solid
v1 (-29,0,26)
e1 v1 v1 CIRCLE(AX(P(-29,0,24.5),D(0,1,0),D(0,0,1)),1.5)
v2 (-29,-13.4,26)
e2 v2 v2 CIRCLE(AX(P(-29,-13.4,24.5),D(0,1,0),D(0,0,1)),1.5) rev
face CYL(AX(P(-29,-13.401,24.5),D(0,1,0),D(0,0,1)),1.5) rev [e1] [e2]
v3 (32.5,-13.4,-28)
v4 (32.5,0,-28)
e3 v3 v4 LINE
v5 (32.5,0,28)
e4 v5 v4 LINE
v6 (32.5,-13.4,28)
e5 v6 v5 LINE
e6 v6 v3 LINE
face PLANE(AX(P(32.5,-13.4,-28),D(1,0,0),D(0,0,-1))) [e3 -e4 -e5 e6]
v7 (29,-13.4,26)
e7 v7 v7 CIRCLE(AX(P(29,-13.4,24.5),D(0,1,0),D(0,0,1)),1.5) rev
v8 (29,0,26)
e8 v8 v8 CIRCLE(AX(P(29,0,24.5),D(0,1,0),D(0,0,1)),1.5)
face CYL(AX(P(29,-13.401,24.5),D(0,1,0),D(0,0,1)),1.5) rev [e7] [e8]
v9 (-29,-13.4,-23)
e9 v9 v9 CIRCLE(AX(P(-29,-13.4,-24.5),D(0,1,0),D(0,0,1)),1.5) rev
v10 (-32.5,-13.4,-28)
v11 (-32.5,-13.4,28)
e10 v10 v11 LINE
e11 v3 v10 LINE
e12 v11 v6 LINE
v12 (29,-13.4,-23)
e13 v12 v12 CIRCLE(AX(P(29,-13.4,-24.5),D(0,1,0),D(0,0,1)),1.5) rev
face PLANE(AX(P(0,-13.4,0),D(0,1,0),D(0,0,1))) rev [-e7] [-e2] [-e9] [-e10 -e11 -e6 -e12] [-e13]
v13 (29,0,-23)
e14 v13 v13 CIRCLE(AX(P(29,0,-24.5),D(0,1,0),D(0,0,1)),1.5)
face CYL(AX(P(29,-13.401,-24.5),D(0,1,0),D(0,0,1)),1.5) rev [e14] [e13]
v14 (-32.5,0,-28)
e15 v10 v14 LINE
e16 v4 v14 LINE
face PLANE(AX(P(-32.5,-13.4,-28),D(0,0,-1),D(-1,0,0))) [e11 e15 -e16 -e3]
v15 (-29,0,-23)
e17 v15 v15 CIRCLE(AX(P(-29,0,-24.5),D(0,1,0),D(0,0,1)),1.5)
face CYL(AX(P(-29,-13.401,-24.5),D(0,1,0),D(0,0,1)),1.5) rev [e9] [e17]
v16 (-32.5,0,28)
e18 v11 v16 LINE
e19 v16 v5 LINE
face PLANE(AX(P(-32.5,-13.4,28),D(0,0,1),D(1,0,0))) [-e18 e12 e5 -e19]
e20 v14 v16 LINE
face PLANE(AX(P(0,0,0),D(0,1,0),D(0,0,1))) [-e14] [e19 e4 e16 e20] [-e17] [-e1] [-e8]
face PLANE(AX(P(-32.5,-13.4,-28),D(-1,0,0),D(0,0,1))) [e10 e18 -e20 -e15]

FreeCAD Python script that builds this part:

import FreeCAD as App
import Part
import Sketcher

V = App.Vector

doc = App.newDocument("Part")
body = doc.addObject("PartDesign::Body", "Body")

# Sketch on XZ plane
sketch1 = body.newObject("Sketcher::SketchObject", "Sketch")
sketch1.AttachmentSupport = (doc.getObject("XZ_Plane"), [""])
sketch1.MapMode = "FlatFace"
sketch1.addGeometry([
    Part.LineSegment(V(-32, -28, 0), V(-32, 28, 0)),
    Part.LineSegment(V(-32, 28, 0), V(32, 28, 0)),
    Part.LineSegment(V(32, 28, 0), V(32, -28, 0)),
    Part.LineSegment(V(32, -28, 0), V(-32, -28, 0)),
], False)
sketch1.addConstraint([
    Sketcher.Constraint("Coincident", 0, 2, 1, 1),
    Sketcher.Constraint("Coincident", 1, 2, 2, 1),
    Sketcher.Constraint("Coincident", 2, 2, 3, 1),
    Sketcher.Constraint("Coincident", 3, 2, 0, 1),
    Sketcher.Constraint("Vertical", 0),
    Sketcher.Constraint("Horizontal", 1),
    Sketcher.Constraint("Vertical", 2),
    Sketcher.Constraint("Horizontal", 3),
    Sketcher.Constraint("Symmetric", 0, 2, 2, 2, -1, 1),
    Sketcher.Constraint("DistanceX", 1, 1, 1, 2, 65.0),
    Sketcher.Constraint("DistanceY", 0, 1, 0, 2, 56.0),
])
pad1 = body.newObject("PartDesign::Pad", "Pad")
pad1.Profile = sketch1
pad1.Length = 13.4

# Sketch on XZ plane
sketch2 = body.newObject("Sketcher::SketchObject", "Sketch001")
sketch2.AttachmentSupport = (doc.getObject("XZ_Plane"), [""])
sketch2.MapMode = "FlatFace"
sketch2.addGeometry(Part.Circle(V(29, -24.5, 0), V(0, 0, 1), 1.5), False)
sketch2.addConstraint([
    Sketcher.Constraint("Diameter", 0, 3.0),
    Sketcher.Constraint("DistanceX", -1, 1, 0, 3, 29.0),
    Sketcher.Constraint("DistanceY", 0, 3, -1, 1, 24.5),
])
pocket1 = body.newObject("PartDesign::Pocket", "Pocket")
pocket1.Profile = sketch2
pocket1.Type = "UpToFirst"
pocket1.Reversed = True

# Sketch on XZ plane
sketch3 = body.newObject("Sketcher::SketchObject", "Sketch002")
sketch3.AttachmentSupport = (doc.getObject("XZ_Plane"), [""])
sketch3.MapMode = "FlatFace"
sketch3.addGeometry(Part.Circle(V(29, 24.5, 0), V(0, 0, 1), 1.5), False)
sketch3.addConstraint([
    Sketcher.Constraint("Diameter", 0, 3.0),
    Sketcher.Constraint("DistanceX", -1, 1, 0, 3, 29.0),
    Sketcher.Constraint("DistanceY", -1, 1, 0, 3, 24.5),
])
pocket2 = body.newObject("PartDesign::Pocket", "Pocket001")
pocket2.Profile = sketch3
pocket2.Type = "UpToFirst"
pocket2.Reversed = True

# Sketch on XZ plane
sketch4 = body.newObject("Sketcher::SketchObject", "Sketch003")
sketch4.AttachmentSupport = (doc.getObject("XZ_Plane"), [""])
sketch4.MapMode = "FlatFace"
sketch4.addGeometry(Part.Circle(V(-29, 24.5, 0), V(0, 0, 1), 1.5), False)
sketch4.addConstraint([
    Sketcher.Constraint("Diameter", 0, 3.0),
    Sketcher.Constraint("DistanceX", 0, 3, -1, 1, 29.0),
    Sketcher.Constraint("DistanceY", -1, 1, 0, 3, 24.5),
])
pocket3 = body.newObject("PartDesign::Pocket", "Pocket002")
pocket3.Profile = sketch4
pocket3.Type = "UpToFirst"
pocket3.Reversed = True

# Sketch on XZ plane
sketch5 = body.newObject("Sketcher::SketchObject", "Sketch004")
sketch5.AttachmentSupport = (doc.getObject("XZ_Plane"), [""])
sketch5.MapMode = "FlatFace"
sketch5.addGeometry(Part.Circle(V(-29, -24.5, 0), V(0, 0, 1), 1.5), False)
sketch5.addConstraint([
    Sketcher.Constraint("Diameter", 0, 3.0),
    Sketcher.Constraint("DistanceX", 0, 3, -1, 1, 29.0),
    Sketcher.Constraint("DistanceY", 0, 3, -1, 1, 24.5),
])
pocket4 = body.newObject("PartDesign::Pocket", "Pocket003")
pocket4.Profile = sketch5
pocket4.Type = "UpToFirst"
pocket4.Reversed = True

doc.recompute()
